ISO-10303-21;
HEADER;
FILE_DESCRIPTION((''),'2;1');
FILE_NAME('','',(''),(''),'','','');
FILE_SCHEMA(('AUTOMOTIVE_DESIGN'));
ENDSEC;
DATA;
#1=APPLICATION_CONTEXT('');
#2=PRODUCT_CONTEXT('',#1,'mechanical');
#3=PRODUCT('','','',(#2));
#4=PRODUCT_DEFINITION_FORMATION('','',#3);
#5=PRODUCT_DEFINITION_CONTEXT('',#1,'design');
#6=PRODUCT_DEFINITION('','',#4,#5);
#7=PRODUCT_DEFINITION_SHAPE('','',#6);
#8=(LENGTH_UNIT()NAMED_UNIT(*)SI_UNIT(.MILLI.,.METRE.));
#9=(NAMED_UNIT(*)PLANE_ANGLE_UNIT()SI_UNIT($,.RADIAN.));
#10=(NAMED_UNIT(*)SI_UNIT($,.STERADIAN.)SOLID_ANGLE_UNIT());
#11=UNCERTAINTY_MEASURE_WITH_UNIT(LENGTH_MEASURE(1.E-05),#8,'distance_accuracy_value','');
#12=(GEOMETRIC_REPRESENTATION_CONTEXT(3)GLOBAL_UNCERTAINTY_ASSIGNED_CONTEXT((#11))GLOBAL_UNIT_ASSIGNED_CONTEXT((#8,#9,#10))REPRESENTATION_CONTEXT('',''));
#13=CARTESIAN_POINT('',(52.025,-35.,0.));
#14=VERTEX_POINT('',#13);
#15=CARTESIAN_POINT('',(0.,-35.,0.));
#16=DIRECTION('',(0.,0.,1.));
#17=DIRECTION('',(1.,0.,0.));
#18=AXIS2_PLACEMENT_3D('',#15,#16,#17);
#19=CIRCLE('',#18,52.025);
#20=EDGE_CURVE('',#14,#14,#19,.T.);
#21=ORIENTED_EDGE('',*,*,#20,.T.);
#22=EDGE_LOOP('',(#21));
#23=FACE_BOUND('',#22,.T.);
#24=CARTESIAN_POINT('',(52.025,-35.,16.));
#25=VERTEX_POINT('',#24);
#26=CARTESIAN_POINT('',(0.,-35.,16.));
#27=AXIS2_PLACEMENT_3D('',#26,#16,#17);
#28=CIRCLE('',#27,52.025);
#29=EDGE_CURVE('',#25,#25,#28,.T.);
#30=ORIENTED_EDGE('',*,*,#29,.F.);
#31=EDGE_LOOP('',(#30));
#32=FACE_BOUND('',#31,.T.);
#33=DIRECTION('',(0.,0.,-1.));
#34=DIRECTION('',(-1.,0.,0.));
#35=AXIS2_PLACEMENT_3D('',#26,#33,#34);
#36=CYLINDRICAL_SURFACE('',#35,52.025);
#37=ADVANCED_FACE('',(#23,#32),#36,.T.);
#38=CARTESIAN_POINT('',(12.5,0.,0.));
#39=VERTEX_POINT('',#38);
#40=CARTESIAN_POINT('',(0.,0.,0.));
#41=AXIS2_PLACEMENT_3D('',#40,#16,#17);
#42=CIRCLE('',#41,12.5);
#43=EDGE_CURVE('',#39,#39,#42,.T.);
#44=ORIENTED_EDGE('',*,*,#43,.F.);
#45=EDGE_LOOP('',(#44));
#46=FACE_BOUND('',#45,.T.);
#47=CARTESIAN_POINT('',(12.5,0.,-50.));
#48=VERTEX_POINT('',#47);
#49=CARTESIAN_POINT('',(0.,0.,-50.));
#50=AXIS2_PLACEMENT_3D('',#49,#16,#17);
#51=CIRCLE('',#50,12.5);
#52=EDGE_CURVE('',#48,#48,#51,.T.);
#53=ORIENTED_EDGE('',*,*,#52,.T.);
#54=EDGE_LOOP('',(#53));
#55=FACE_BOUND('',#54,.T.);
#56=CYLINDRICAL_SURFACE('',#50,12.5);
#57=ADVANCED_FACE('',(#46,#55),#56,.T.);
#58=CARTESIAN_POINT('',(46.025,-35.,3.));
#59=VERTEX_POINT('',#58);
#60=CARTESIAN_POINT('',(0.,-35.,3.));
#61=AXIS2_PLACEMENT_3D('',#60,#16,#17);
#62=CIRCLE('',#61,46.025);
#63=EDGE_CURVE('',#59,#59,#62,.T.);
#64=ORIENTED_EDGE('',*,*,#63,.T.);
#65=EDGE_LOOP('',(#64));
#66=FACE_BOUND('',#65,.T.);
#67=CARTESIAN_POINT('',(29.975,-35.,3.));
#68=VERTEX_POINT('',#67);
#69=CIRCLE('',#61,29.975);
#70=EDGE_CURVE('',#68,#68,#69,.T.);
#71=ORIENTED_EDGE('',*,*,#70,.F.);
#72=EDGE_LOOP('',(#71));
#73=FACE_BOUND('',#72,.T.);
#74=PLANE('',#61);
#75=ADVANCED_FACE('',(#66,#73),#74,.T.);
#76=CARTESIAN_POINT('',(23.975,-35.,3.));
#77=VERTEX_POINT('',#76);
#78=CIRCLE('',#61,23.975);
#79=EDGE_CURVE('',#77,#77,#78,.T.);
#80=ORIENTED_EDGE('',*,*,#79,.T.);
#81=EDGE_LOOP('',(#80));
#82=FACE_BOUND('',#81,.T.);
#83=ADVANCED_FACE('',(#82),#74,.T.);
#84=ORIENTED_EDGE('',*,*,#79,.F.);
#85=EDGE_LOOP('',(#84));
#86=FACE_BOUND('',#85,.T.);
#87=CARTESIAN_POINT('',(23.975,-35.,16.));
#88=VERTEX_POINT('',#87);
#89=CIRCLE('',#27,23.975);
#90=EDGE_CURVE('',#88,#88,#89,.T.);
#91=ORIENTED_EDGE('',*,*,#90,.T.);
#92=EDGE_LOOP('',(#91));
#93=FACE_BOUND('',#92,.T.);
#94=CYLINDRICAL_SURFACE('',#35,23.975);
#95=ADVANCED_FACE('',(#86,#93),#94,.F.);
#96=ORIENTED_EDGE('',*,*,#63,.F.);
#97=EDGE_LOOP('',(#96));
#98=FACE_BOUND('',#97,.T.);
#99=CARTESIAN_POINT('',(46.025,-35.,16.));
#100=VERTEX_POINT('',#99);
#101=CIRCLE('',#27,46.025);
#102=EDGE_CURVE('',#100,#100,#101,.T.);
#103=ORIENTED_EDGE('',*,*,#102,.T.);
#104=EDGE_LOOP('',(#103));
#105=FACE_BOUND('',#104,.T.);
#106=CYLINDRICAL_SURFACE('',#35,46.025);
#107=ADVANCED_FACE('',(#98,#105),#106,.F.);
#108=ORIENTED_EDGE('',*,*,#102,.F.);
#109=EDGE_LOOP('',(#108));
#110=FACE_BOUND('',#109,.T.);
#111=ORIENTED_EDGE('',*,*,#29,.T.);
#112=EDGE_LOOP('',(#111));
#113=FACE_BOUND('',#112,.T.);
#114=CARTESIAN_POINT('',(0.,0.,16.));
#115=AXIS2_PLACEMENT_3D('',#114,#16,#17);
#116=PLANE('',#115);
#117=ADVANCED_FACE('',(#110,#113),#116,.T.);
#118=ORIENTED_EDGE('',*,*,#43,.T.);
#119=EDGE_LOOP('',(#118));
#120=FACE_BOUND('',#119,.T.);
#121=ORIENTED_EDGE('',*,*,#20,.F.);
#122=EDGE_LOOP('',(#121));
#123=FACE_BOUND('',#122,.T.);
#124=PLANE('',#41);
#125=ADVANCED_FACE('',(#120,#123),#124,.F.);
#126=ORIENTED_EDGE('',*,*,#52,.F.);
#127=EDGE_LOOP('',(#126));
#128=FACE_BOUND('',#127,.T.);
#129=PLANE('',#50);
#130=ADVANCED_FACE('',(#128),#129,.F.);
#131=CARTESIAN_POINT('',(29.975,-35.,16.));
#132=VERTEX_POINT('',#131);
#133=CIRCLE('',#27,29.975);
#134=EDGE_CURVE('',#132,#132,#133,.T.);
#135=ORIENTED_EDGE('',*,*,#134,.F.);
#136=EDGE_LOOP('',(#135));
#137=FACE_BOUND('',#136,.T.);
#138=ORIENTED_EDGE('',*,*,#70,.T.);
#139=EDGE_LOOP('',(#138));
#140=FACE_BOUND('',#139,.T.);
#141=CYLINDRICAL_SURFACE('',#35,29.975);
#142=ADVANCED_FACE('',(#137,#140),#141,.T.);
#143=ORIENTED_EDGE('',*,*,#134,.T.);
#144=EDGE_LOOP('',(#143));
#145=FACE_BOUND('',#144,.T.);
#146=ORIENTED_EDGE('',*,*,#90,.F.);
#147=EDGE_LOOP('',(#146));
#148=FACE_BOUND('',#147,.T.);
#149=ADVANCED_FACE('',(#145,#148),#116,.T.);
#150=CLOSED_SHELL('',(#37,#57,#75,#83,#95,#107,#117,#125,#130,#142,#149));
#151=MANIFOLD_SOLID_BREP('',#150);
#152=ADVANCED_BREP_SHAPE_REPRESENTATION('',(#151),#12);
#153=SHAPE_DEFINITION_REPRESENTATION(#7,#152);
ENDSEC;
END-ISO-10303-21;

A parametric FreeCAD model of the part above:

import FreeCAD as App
import Part
import Sketcher
Q = App.Units.Quantity

doc = App.newDocument("Part")
body = doc.addObject("PartDesign::Body", "Body")

sketch1 = body.newObject("Sketcher::SketchObject", "Sketch")
sketch1.AttachmentSupport = (doc.getObject("XY_Plane"), [""])
sketch1.MapMode = "FlatFace"
sketch1.addGeometry(Part.Circle(App.Vector(0, 0, 0), App.Vector(0, 0, 1), 12.5), False)
sketch1.addConstraint([
    Sketcher.Constraint("Coincident", 0, 3, -1, 1),
    Sketcher.Constraint("Diameter", 0, Q("25 mm")),
])
pad1 = body.newObject("PartDesign::Pad", "Pad")
pad1.Profile = sketch1
pad1.Length = 50
pad1.Reversed = True

sketch2 = body.newObject("Sketcher::SketchObject", "Sketch001")
sketch2.AttachmentSupport = (doc.getObject("XY_Plane"), [""])
sketch2.MapMode = "FlatFace"
sketch2.addGeometry([
    Part.Circle(App.Vector(0, -35, 0), App.Vector(0, 0, 1), 52.025),
    Part.Circle(App.Vector(0, -35, 0), App.Vector(0, 0, 1), 46.025),
    Part.Circle(App.Vector(0, -35, 0), App.Vector(0, 0, 1), 29.975),
    Part.Circle(App.Vector(0, -35, 0), App.Vector(0, 0, 1), 23.975),
], False)
sketch2.addConstraint([
    Sketcher.Constraint("Coincident", 1, 3, 0, 3),
    Sketcher.Constraint("Coincident", 2, 3, 0, 3),
    Sketcher.Constraint("Coincident", 3, 3, 0, 3),
    Sketcher.Constraint("PointOnObject", 0, 3, -2),
    Sketcher.Constraint("Diameter", 0, Q("104.05 mm")),
    Sketcher.Constraint("Diameter", 1, Q("92.05 mm")),
    Sketcher.Constraint("Diameter", 2, Q("59.95 mm")),
    Sketcher.Constraint("Diameter", 3, Q("47.95 mm")),
    Sketcher.Constraint("DistanceY", 0, 3, -1, 1, Q("35 mm")),
])
pad2 = body.newObject("PartDesign::Pad", "Pad001")
pad2.Profile = sketch2
pad2.Length = 16

sketch3 = body.newObject("Sketcher::SketchObject", "Sketch002")
sketch3.AttachmentSupport = (doc.getObject("XY_Plane"), [""])
sketch3.MapMode = "FlatFace"
sketch3.addGeometry(Part.Circle(App.Vector(0, -35, 0), App.Vector(0, 0, 1), 52.025), False)
sketch3.addConstraint([
    Sketcher.Constraint("PointOnObject", 0, 3, -2),
    Sketcher.Constraint("Diameter", 0, Q("104.05 mm")),
    Sketcher.Constraint("DistanceY", 0, 3, -1, 1, Q("35 mm")),
])
pad3 = body.newObject("PartDesign::Pad", "Pad002")
pad3.Profile = sketch3
pad3.Length = 3

doc.recompute()
